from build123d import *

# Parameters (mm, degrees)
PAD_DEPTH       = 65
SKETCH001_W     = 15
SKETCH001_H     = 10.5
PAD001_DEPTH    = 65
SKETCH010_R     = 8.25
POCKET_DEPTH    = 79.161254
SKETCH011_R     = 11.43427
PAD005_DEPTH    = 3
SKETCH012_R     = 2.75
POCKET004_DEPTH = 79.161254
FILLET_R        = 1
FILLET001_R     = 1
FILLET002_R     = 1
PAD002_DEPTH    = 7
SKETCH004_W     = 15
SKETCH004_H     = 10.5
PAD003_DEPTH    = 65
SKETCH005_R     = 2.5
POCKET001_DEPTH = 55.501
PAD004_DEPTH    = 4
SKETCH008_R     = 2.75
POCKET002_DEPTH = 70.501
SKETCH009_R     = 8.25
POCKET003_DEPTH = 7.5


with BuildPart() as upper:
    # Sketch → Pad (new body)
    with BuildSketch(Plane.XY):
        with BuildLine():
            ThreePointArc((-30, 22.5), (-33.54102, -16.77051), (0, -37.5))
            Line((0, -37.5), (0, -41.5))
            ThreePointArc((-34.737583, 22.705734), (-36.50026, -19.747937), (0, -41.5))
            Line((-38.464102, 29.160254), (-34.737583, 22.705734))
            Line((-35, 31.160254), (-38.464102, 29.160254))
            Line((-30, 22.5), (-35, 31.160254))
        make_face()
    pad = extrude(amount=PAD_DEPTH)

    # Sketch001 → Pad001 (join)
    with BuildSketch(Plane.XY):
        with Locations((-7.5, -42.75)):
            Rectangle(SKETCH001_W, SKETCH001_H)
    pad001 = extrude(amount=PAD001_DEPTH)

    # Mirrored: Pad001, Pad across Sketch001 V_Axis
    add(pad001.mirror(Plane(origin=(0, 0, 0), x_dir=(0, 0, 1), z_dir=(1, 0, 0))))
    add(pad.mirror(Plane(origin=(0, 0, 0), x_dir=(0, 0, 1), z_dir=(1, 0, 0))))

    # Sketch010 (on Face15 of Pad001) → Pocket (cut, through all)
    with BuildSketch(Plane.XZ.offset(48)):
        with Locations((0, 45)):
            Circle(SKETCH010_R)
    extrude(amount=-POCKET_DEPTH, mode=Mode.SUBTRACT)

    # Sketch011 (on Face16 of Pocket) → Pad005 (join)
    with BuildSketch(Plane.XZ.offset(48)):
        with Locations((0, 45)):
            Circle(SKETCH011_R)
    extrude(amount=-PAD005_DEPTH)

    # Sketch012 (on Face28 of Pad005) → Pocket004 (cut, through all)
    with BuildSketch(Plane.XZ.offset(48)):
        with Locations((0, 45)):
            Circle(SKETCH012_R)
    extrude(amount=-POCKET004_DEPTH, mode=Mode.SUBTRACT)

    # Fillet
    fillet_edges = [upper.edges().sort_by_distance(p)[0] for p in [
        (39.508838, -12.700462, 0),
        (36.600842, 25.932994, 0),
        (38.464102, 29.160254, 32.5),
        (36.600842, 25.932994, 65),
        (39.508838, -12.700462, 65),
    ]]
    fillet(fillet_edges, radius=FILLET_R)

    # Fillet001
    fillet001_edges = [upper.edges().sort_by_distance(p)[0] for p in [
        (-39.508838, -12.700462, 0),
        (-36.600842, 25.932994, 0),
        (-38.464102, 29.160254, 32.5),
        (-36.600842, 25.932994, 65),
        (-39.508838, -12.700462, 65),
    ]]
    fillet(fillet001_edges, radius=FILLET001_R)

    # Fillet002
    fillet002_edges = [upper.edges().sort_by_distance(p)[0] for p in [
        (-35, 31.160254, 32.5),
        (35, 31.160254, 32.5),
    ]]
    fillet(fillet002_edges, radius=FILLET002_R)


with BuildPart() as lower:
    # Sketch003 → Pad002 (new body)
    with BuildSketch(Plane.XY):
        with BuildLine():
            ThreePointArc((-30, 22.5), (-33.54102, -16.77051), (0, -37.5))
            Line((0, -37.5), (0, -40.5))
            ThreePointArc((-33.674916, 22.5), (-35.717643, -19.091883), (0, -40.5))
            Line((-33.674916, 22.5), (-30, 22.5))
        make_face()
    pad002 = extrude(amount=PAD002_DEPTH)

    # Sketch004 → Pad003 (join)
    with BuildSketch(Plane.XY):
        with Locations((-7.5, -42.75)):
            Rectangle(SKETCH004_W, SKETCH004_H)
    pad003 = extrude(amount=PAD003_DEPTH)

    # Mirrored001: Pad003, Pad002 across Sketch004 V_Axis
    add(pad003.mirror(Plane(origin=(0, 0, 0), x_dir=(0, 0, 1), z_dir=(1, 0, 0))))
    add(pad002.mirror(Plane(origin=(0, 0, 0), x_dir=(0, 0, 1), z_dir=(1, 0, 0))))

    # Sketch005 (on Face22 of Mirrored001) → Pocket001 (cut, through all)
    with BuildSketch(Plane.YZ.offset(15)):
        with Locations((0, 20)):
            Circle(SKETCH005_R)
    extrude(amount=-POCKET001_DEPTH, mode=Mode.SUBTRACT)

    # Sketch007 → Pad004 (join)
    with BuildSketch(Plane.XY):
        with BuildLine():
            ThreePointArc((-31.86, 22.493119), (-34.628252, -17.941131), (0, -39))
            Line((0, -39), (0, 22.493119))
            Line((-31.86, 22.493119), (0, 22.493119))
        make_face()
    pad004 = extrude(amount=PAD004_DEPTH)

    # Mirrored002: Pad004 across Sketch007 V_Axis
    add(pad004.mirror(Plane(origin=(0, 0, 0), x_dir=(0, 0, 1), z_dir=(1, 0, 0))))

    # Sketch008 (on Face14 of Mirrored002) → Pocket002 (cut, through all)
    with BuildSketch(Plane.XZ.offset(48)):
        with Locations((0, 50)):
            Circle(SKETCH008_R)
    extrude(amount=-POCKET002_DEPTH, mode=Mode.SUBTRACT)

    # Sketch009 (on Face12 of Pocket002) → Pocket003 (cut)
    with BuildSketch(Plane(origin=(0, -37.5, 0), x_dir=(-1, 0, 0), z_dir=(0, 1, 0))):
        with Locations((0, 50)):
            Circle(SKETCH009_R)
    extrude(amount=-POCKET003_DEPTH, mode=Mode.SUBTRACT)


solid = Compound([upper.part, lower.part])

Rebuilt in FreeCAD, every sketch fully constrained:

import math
import FreeCAD as App
import Part
import Sketcher
from FreeCAD import Vector
Q = App.Units.Quantity


def edges_at(feature, points):
    """Names of the edges that pass closest to the given points."""
    edges = feature.Shape.Edges
    near = lambda p: min(range(len(edges)), key=lambda i: edges[i].distToShape(Part.Vertex(*p))[0])
    return sorted({f"Edge{near(p) + 1}" for p in points})

doc = App.newDocument("Part")
body = doc.addObject("PartDesign::Body", "Body")

sketch1 = doc.addObject("Sketcher::SketchObject", "Sketch")
body.addObject(sketch1)
sketch1.AttachmentSupport = (doc.XY_Plane, [""])
sketch1.MapMode = "FlatFace"
sketch1.addGeometry([
    Part.ArcOfCircle(Part.Circle(Vector(-0.000001, 0, 0), Vector(0, 0, 1), 37.5), math.radians(143.130101), math.radians(270.000001)),
    Part.LineSegment(Vector(-30, 22.5, 0), Vector(-35, 31.160254, 0)),
    Part.LineSegment(Vector(-35, 31.160254, 0), Vector(-38.464102, 29.160254, 0)),
    Part.LineSegment(Vector(-38.464102, 29.160254, 0), Vector(-34.737583, 22.705734, 0)),
    Part.ArcOfCircle(Part.Circle(Vector(0, 0, 0), Vector(0, 0, 1), 41.5), math.radians(146.829926), math.radians(270)),
    Part.LineSegment(Vector(0, -41.5, 0), Vector(0, -37.5, 0)),
], False)
sketch1.addConstraint([
    Sketcher.Constraint("Coincident", 0, 1, 1, 1),
    Sketcher.Constraint("Coincident", 1, 2, 2, 1),
    Sketcher.Constraint("Coincident", 2, 2, 3, 1),
    Sketcher.Constraint("Coincident", 3, 2, 4, 1),
    Sketcher.Constraint("Coincident", 4, 2, 5, 1),
    Sketcher.Constraint("Coincident", 5, 2, 0, 2),
    Sketcher.Constraint("Vertical", 5),
    Sketcher.Constraint("Coincident", 0, 3, -1, 1),
    Sketcher.Constraint("Coincident", 4, 3, -1, 1),
    Sketcher.Constraint("PointOnObject", 4, 2, -2),
    Sketcher.Constraint("Perpendicular", 1, 2),
    Sketcher.Constraint("Perpendicular", 2, 3),
    Sketcher.Constraint("Radius", 0, Q("37.5 mm")),
    Sketcher.Constraint("Radius", 4, Q("41.5 mm")),
    Sketcher.Constraint("Angle", 1, Q("120 deg")),
    Sketcher.Constraint("Distance", 1, Q("10 mm")),
    Sketcher.Constraint("Distance", 2, Q("4 mm")),
    Sketcher.Constraint("DistanceX", 0, 1, -1, 1, Q("30 mm")),
])
pad1 = doc.addObject("PartDesign::Pad", "Pad")
body.addObject(pad1)
pad1.Profile = sketch1
pad1.Length = 65

sketch2 = doc.addObject("Sketcher::SketchObject", "Sketch001")
body.addObject(sketch2)
sketch2.AttachmentSupport = (doc.XY_Plane, [""])
sketch2.MapMode = "FlatFace"
sketch2.addGeometry([
    Part.LineSegment(Vector(-15, -37.5, 0), Vector(-15, -48, 0)),
    Part.LineSegment(Vector(-15, -48, 0), Vector(0, -48, 0)),
    Part.LineSegment(Vector(0, -48, 0), Vector(0, -37.5, 0)),
    Part.LineSegment(Vector(0, -37.5, 0), Vector(-15, -37.5, 0)),
], False)
sketch2.addConstraint([
    Sketcher.Constraint("Coincident", 0, 2, 1, 1),
    Sketcher.Constraint("Coincident", 1, 2, 2, 1),
    Sketcher.Constraint("Coincident", 2, 2, 3, 1),
    Sketcher.Constraint("Coincident", 3, 2, 0, 1),
    Sketcher.Constraint("Vertical", 0),
    Sketcher.Constraint("Horizontal", 1),
    Sketcher.Constraint("Vertical", 2),
    Sketcher.Constraint("Horizontal", 3),
    Sketcher.Constraint("PointOnObject", 1, 2, -2),
    Sketcher.Constraint("DistanceX", 1, 1, 1, 2, Q("15 mm")),
    Sketcher.Constraint("DistanceY", 0, 2, 0, 1, Q("10.5 mm")),
    Sketcher.Constraint("DistanceY", 0, 2, -1, 1, Q("48 mm")),
])
pad2 = doc.addObject("PartDesign::Pad", "Pad001")
body.addObject(pad2)
pad2.Profile = sketch2
pad2.Length = 65
doc.recompute()

mirrored = doc.addObject("PartDesign::Mirrored", "Mirrored")
body.addObject(mirrored)
mirrored.Originals = [pad2, pad1]
mirrored.MirrorPlane = (doc.YZ_Plane, [""])
body.Tip = mirrored

sketch3 = doc.addObject("Sketcher::SketchObject", "Sketch002")
body.addObject(sketch3)
sketch3.AttachmentSupport = (doc.XZ_Plane, [""])
sketch3.MapMode = "FlatFace"
sketch3.AttachmentOffset = App.Placement(Vector(0, 0, 48), App.Rotation())
sketch3.addGeometry(Part.Circle(Vector(0, 45, 0), Vector(0, 0, 1), 8.25), False)
sketch3.addConstraint([
    Sketcher.Constraint("PointOnObject", 0, 3, -2),
    Sketcher.Constraint("Diameter", 0, Q("16.5 mm")),
    Sketcher.Constraint("DistanceY", -1, 1, 0, 3, Q("45 mm")),
])
pocket1 = doc.addObject("PartDesign::Pocket", "Pocket")
body.addObject(pocket1)
pocket1.Profile = sketch3
pocket1.Type = "ThroughAll"

sketch4 = doc.addObject("Sketcher::SketchObject", "Sketch003")
body.addObject(sketch4)
sketch4.AttachmentSupport = (doc.XZ_Plane, [""])
sketch4.MapMode = "FlatFace"
sketch4.AttachmentOffset = App.Placement(Vector(0, 0, 48), App.Rotation())
sketch4.addGeometry(Part.Circle(Vector(0, 45, 0), Vector(0, 0, 1), 11.43427), False)
sketch4.addConstraint([
    Sketcher.Constraint("PointOnObject", 0, 3, -2),
    Sketcher.Constraint("DistanceY", -1, 1, 0, 3, Q("45 mm")),
    Sketcher.Constraint("Diameter", 0, Q("22.86854 mm")),
])
pad3 = doc.addObject("PartDesign::Pad", "Pad002")
body.addObject(pad3)
pad3.Profile = sketch4
pad3.Length = 3
pad3.Reversed = True

sketch5 = doc.addObject("Sketcher::SketchObject", "Sketch004")
body.addObject(sketch5)
sketch5.AttachmentSupport = (doc.XZ_Plane, [""])
sketch5.MapMode = "FlatFace"
sketch5.AttachmentOffset = App.Placement(Vector(0, 0, 48), App.Rotation())
sketch5.addGeometry(Part.Circle(Vector(0, 45, 0), Vector(0, 0, 1), 2.75), False)
sketch5.addConstraint([
    Sketcher.Constraint("PointOnObject", 0, 3, -2),
    Sketcher.Constraint("Diameter", 0, Q("5.5 mm")),
    Sketcher.Constraint("DistanceY", -1, 1, 0, 3, Q("45 mm")),
])
pocket2 = doc.addObject("PartDesign::Pocket", "Pocket001")
body.addObject(pocket2)
pocket2.Profile = sketch5
pocket2.Type = "ThroughAll"
doc.recompute()

fillet = doc.addObject("PartDesign::Fillet", "Fillet")
body.addObject(fillet)
fillet.Base = (pocket2, edges_at(pocket2, [
    (39.509, -12.7, 0),
    (36.601, 25.933, 0),
    (38.464, 29.16, 32.5),
    (36.601, 25.933, 65),
    (39.509, -12.7, 65),
]))
fillet.Radius = 1
doc.recompute()

fillet2 = doc.addObject("PartDesign::Fillet", "Fillet001")
body.addObject(fillet2)
fillet2.Base = (fillet, edges_at(fillet, [
    (-39.509, -12.7, 0),
    (-36.601, 25.933, 0),
    (-38.464, 29.16, 32.5),
    (-36.601, 25.933, 65),
    (-39.509, -12.7, 65),
]))
fillet2.Radius = 1
doc.recompute()

fillet3 = doc.addObject("PartDesign::Fillet", "Fillet002")
body.addObject(fillet3)
fillet3.Base = (fillet2, edges_at(fillet2, [(-35, 31.16, 32.5), (35, 31.16, 32.5)]))
fillet3.Radius = 1
body2 = doc.addObject("PartDesign::Body", "Body001")

sketch6 = doc.addObject("Sketcher::SketchObject", "Sketch005")
body2.addObject(sketch6)
sketch6.AttachmentSupport = (doc.getObject("XY_Plane001"), [""])
sketch6.MapMode = "FlatFace"
sketch6.addGeometry([
    Part.ArcOfCircle(Part.Circle(Vector(-0.000001, 0, 0), Vector(0, 0, 1), 37.5), math.radians(143.130101), math.radians(270.000001)),
    Part.LineSegment(Vector(-30, 22.5, 0), Vector(-33.674916, 22.5, 0)),
    Part.ArcOfCircle(Part.Circle(Vector(-0.000001, -0.000001, 0), Vector(0, 0, 1), 40.499999), math.radians(146.25101), math.radians(270.000001)),
    Part.LineSegment(Vector(0, -40.5, 0), Vector(0, -37.5, 0)),
], False)
sketch6.addConstraint([
    Sketcher.Constraint("Coincident", 0, 1, 1, 1),
    Sketcher.Constraint("Coincident", 1, 2, 2, 1),
    Sketcher.Constraint("Coincident", 2, 2, 3, 1),
    Sketcher.Constraint("Coincident", 3, 2, 0, 2),
    Sketcher.Constraint("Horizontal", 1),
    Sketcher.Constraint("Vertical", 3),
    Sketcher.Constraint("Coincident", 0, 3, -1, 1),
    Sketcher.Constraint("Coincident", 2, 3, -1, 1),
    Sketcher.Constraint("PointOnObject", 2, 2, -2),
    Sketcher.Constraint("Radius", 0, Q("37.5 mm")),
    Sketcher.Constraint("Radius", 2, Q("40.499999 mm")),
    Sketcher.Constraint("DistanceX", 0, 1, -1, 1, Q("30 mm")),
])
pad4 = doc.addObject("PartDesign::Pad", "Pad003")
body2.addObject(pad4)
pad4.Profile = sketch6
pad4.Length = 7

sketch7 = doc.addObject("Sketcher::SketchObject", "Sketch006")
body2.addObject(sketch7)
sketch7.AttachmentSupport = (doc.getObject("XY_Plane001"), [""])
sketch7.MapMode = "FlatFace"
sketch7.addGeometry([
    Part.LineSegment(Vector(-15, -37.5, 0), Vector(-15, -48, 0)),
    Part.LineSegment(Vector(-15, -48, 0), Vector(0, -48, 0)),
    Part.LineSegment(Vector(0, -48, 0), Vector(0, -37.5, 0)),
    Part.LineSegment(Vector(0, -37.5, 0), Vector(-15, -37.5, 0)),
], False)
sketch7.addConstraint([
    Sketcher.Constraint("Coincident", 0, 2, 1, 1),
    Sketcher.Constraint("Coincident", 1, 2, 2, 1),
    Sketcher.Constraint("Coincident", 2, 2, 3, 1),
    Sketcher.Constraint("Coincident", 3, 2, 0, 1),
    Sketcher.Constraint("Vertical", 0),
    Sketcher.Constraint("Horizontal", 1),
    Sketcher.Constraint("Vertical", 2),
    Sketcher.Constraint("Horizontal", 3),
    Sketcher.Constraint("PointOnObject", 1, 2, -2),
    Sketcher.Constraint("DistanceX", 1, 1, 1, 2, Q("15 mm")),
    Sketcher.Constraint("DistanceY", 0, 2, 0, 1, Q("10.5 mm")),
    Sketcher.Constraint("DistanceY", 0, 2, -1, 1, Q("48 mm")),
])
pad5 = doc.addObject("PartDesign::Pad", "Pad004")
body2.addObject(pad5)
pad5.Profile = sketch7
pad5.Length = 65
doc.recompute()

mirrored2 = doc.addObject("PartDesign::Mirrored", "Mirrored001")
body2.addObject(mirrored2)
mirrored2.Originals = [pad5, pad4]
mirrored2.MirrorPlane = (doc.getObject("YZ_Plane001"), [""])
body2.Tip = mirrored2

sketch8 = doc.addObject("Sketcher::SketchObject", "Sketch007")
body2.addObject(sketch8)
sketch8.AttachmentSupport = (doc.getObject("YZ_Plane001"), [""])
sketch8.MapMode = "FlatFace"
sketch8.AttachmentOffset = App.Placement(Vector(0, 0, 15), App.Rotation())
sketch8.addGeometry(Part.Circle(Vector(0, 20, 0), Vector(0, 0, 1), 2.5), False)
sketch8.addConstraint([
    Sketcher.Constraint("PointOnObject", 0, 3, -2),
    Sketcher.Constraint("Diameter", 0, Q("5 mm")),
    Sketcher.Constraint("DistanceY", -1, 1, 0, 3, Q("20 mm")),
])
pocket3 = doc.addObject("PartDesign::Pocket", "Pocket002")
body2.addObject(pocket3)
pocket3.Profile = sketch8
pocket3.Type = "ThroughAll"

sketch9 = doc.addObject("Sketcher::SketchObject", "Sketch008")
body2.addObject(sketch9)
sketch9.AttachmentSupport = (doc.getObject("XY_Plane001"), [""])
sketch9.MapMode = "FlatFace"
sketch9.addGeometry([
    Part.ArcOfCircle(Part.Circle(Vector(0, 0, 0), Vector(0, 0, 1), 39), math.radians(144.777957), math.radians(270.000001)),
    Part.LineSegment(Vector(0, -39, 0), Vector(0, 22.493119, 0)),
    Part.LineSegment(Vector(0, 22.493119, 0), Vector(-31.86, 22.493119, 0)),
], False)
sketch9.addConstraint([
    Sketcher.Constraint("Coincident", 0, 2, 1, 1),
    Sketcher.Constraint("Coincident", 1, 2, 2, 1),
    Sketcher.Constraint("Coincident", 2, 2, 0, 1),
    Sketcher.Constraint("Vertical", 1),
    Sketcher.Constraint("Horizontal", 2),
    Sketcher.Constraint("Coincident", 0, 3, -1, 1),
    Sketcher.Constraint("PointOnObject", 0, 2, -2),
    Sketcher.Constraint("Radius", 0, Q("39 mm")),
    Sketcher.Constraint("DistanceX", 2, 2, 2, 1, Q("31.86 mm")),
])
pad6 = doc.addObject("PartDesign::Pad", "Pad005")
body2.addObject(pad6)
pad6.Profile = sketch9
pad6.Length = 4
doc.recompute()

mirrored3 = doc.addObject("PartDesign::Mirrored", "Mirrored002")
body2.addObject(mirrored3)
mirrored3.Originals = [pad6]
mirrored3.MirrorPlane = (doc.getObject("YZ_Plane001"), [""])
body2.Tip = mirrored3

sketch10 = doc.addObject("Sketcher::SketchObject", "Sketch009")
body2.addObject(sketch10)
sketch10.AttachmentSupport = (doc.getObject("XZ_Plane001"), [""])
sketch10.MapMode = "FlatFace"
sketch10.AttachmentOffset = App.Placement(Vector(0, 0, 48), App.Rotation())
sketch10.addGeometry(Part.Circle(Vector(0, 50, 0), Vector(0, 0, 1), 2.75), False)
sketch10.addConstraint([
    Sketcher.Constraint("PointOnObject", 0, 3, -2),
    Sketcher.Constraint("Diameter", 0, Q("5.5 mm")),
    Sketcher.Constraint("DistanceY", -1, 1, 0, 3, Q("50 mm")),
])
pocket4 = doc.addObject("PartDesign::Pocket", "Pocket003")
body2.addObject(pocket4)
pocket4.Profile = sketch10
pocket4.Type = "ThroughAll"

sketch11 = doc.addObject("Sketcher::SketchObject", "Sketch010")
body2.addObject(sketch11)
sketch11.AttachmentSupport = (doc.getObject("XZ_Plane001"), [""])
sketch11.MapMode = "FlatFace"
sketch11.AttachmentOffset = App.Placement(Vector(0, 0, 37.5), App.Rotation())
sketch11.addGeometry(Part.Circle(Vector(0, 50, 0), Vector(0, 0, 1), 8.25), False)
sketch11.addConstraint([
    Sketcher.Constraint("PointOnObject", 0, 3, -2),
    Sketcher.Constraint("Diameter", 0, Q("16.5 mm")),
    Sketcher.Constraint("DistanceY", -1, 1, 0, 3, Q("50 mm")),
])
pocket5 = doc.addObject("PartDesign::Pocket", "Pocket004")
body2.addObject(pocket5)
pocket5.Profile = sketch11
pocket5.Length = 7.5
pocket5.Reversed = True

doc.recompute()
